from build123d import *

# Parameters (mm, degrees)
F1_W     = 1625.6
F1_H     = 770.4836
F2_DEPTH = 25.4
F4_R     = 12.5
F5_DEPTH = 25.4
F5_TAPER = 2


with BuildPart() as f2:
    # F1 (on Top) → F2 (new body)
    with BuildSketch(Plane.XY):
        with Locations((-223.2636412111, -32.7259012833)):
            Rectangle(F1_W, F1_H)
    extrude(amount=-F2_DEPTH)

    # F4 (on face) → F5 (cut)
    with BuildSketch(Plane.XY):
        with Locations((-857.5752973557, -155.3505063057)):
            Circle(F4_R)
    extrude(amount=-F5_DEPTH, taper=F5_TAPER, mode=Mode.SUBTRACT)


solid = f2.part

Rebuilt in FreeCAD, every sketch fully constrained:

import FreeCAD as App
import Part
import Sketcher
Q = App.Units.Quantity


def add_polygon(sketch, points):
    """Adds a closed chain of lines whose ends are joined by coincident constraints."""
    first, n = sketch.GeometryCount, len(points)
    for a, b in zip(points, points[1:] + points[:1]):
        sketch.addGeometry(Part.LineSegment(App.Vector(*a, 0), App.Vector(*b, 0)), False)
    for i in range(n):
        sketch.addConstraint(Sketcher.Constraint("Coincident", first + i, 2, first + (i + 1) % n, 1))

doc = App.newDocument("Part")
body = doc.addObject("PartDesign::Body", "Body")

sketch1 = body.newObject("Sketcher::SketchObject", "Sketch")
sketch1.AttachmentSupport = (doc.getObject("XY_Plane"), [""])
sketch1.MapMode = "FlatFace"
add_polygon(sketch1, [(-1036, 353), (-1036, -418), (590, -418), (590, 353)])
sketch1.addConstraint([
    Sketcher.Constraint("Vertical", 0),
    Sketcher.Constraint("Horizontal", 1),
    Sketcher.Constraint("Vertical", 2),
    Sketcher.Constraint("Horizontal", 3),
    Sketcher.Constraint("DistanceX", 1, 1, 1, 2, Q("64 in")),
    Sketcher.Constraint("DistanceY", 0, 2, 0, 1, Q("30.334 in")),
    Sketcher.Constraint("DistanceY", 0, 2, -1, 1, 417.967701),
    Sketcher.Constraint("DistanceX", 0, 2, -1, 1, 1036.063641),
])
pad1 = body.newObject("PartDesign::Pad", "Pad")
pad1.Profile = sketch1
pad1.Length = Q("1 in")
pad1.Reversed = True

sketch2 = body.newObject("Sketcher::SketchObject", "Sketch001")
sketch2.AttachmentSupport = (doc.getObject("XY_Plane"), [""])
sketch2.MapMode = "FlatFace"
sketch2.addGeometry(Part.Circle(App.Vector(-858, -155, 0), App.Vector(0, 0, 1), 12), False)
sketch2.addConstraint([
    Sketcher.Constraint("Diameter", 0, 25.0),
    Sketcher.Constraint("DistanceX", 0, 3, -1, 1, 857.575297),
    Sketcher.Constraint("DistanceY", 0, 3, -1, 1, 155.350506),
])
pocket1 = body.newObject("PartDesign::Pocket", "Pocket")
pocket1.Profile = sketch2
pocket1.Length = Q("1 in")
pocket1.TaperAngle = -2

doc.recompute()
